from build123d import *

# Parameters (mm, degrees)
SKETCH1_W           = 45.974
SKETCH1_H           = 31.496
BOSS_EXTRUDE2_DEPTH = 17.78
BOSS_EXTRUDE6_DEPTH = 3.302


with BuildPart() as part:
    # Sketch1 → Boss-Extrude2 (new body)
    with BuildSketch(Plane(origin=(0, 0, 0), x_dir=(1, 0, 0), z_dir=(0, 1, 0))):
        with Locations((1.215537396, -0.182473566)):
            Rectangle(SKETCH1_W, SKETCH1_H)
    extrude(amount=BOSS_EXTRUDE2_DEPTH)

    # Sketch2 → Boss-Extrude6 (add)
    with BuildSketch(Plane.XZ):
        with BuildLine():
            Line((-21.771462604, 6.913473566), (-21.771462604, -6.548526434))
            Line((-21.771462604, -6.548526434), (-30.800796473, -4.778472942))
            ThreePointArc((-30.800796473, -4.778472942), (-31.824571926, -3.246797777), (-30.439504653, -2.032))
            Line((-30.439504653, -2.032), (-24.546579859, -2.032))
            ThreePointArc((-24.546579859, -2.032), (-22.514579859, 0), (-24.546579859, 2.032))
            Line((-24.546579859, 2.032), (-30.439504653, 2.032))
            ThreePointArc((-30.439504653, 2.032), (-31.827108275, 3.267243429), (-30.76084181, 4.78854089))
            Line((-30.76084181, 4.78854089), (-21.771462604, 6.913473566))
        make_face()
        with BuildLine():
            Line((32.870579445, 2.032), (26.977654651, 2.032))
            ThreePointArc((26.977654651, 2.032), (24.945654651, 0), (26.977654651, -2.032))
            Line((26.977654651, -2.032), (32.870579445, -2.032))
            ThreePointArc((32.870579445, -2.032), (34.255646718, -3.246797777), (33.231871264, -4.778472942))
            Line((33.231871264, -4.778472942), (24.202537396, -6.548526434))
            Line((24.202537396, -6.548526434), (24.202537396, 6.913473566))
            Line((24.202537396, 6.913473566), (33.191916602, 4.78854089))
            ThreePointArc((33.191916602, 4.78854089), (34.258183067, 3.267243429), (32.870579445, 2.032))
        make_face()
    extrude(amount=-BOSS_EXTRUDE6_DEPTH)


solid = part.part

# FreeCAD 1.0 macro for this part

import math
import FreeCAD as App
import Part
import Sketcher
from FreeCAD import Vector
Q = App.Units.Quantity

doc = App.newDocument("Part")
body = doc.addObject("PartDesign::Body", "Body")

# Sketch on XZ plane
sketch1 = body.newObject("Sketcher::SketchObject", "Sketch")
sketch1.AttachmentSupport = (doc.getObject("XZ_Plane"), [""])
sketch1.MapMode = "FlatFace"
sketch1.addGeometry(Part.LineSegment(Vector(-21.771463, -15.565526, 0), Vector(-21.771463, 15.930474, 0)), False)
sketch1.addGeometry(Part.LineSegment(Vector(-21.771463, 15.930474, 0), Vector(24.202537, 15.930474, 0)), False)
sketch1.addGeometry(Part.LineSegment(Vector(24.202537, 15.930474, 0), Vector(24.202537, -15.565526, 0)), False)
sketch1.addGeometry(Part.LineSegment(Vector(24.202537, -15.565526, 0), Vector(-21.771463, -15.565526, 0)), False)
sketch1.addConstraint(Sketcher.Constraint("Coincident", 0, 2, 1, 1))
sketch1.addConstraint(Sketcher.Constraint("Coincident", 1, 2, 2, 1))
sketch1.addConstraint(Sketcher.Constraint("Coincident", 2, 2, 3, 1))
sketch1.addConstraint(Sketcher.Constraint("Coincident", 3, 2, 0, 1))
sketch1.addConstraint(Sketcher.Constraint("Vertical", 0))
sketch1.addConstraint(Sketcher.Constraint("Horizontal", 1))
sketch1.addConstraint(Sketcher.Constraint("Vertical", 2))
sketch1.addConstraint(Sketcher.Constraint("Horizontal", 3))
sketch1.addConstraint(Sketcher.Constraint("DistanceX", 1, 1, 1, 2, Q("1.81 in")))
sketch1.addConstraint(Sketcher.Constraint("DistanceY", 0, 1, 0, 2, Q("1.24 in")))
sketch1.addConstraint(Sketcher.Constraint("DistanceX", 0, 2, -1, 1, Q("21.771463 mm")))
sketch1.addConstraint(Sketcher.Constraint("DistanceY", -1, 1, 0, 2, Q("15.930474 mm")))
pad1 = body.newObject("PartDesign::Pad", "Pad")
pad1.Profile = sketch1
pad1.Length = Q("0.7 in")
pad1.Reversed = True

# Sketch on XZ plane
sketch2 = body.newObject("Sketcher::SketchObject", "Sketch001")
sketch2.AttachmentSupport = (doc.getObject("XZ_Plane"), [""])
sketch2.MapMode = "FlatFace"
sketch2.addGeometry(Part.LineSegment(Vector(-21.771463, -6.548526, 0), Vector(-21.771463, 6.913474, 0)), False)
sketch2.addGeometry(Part.LineSegment(Vector(-21.771463, 6.913474, 0), Vector(-30.760842, 4.788541, 0)), False)
sketch2.addGeometry(Part.ArcOfCircle(Part.Circle(Vector(-30.439505, 3.429, 0), Vector(0, 0, 1), 1.397), math.radians(103.298216), math.radians(270)), False)
sketch2.addGeometry(Part.LineSegment(Vector(-30.439505, 2.032, 0), Vector(-24.54658, 2.032, 0)), False)
sketch2.addGeometry(Part.ArcOfCircle(Part.Circle(Vector(-24.54658, 0, 0), Vector(0, 0, 1), 2.032), math.radians(-90), math.radians(90)), False)
sketch2.addGeometry(Part.LineSegment(Vector(-24.54658, -2.032, 0), Vector(-30.439505, -2.032, 0)), False)
sketch2.addGeometry(Part.ArcOfCircle(Part.Circle(Vector(-30.439505, -3.429, 0), Vector(0, 0, 1), 1.397), math.radians(90), math.radians(255.01182)), False)
sketch2.addGeometry(Part.LineSegment(Vector(-30.800796, -4.778473, 0), Vector(-21.771463, -6.548526, 0)), False)
sketch2.addGeometry(Part.LineSegment(Vector(26.977655, 2.032, 0), Vector(32.870579, 2.032, 0)), False)
sketch2.addGeometry(Part.ArcOfCircle(Part.Circle(Vector(32.870579, 3.429, 0), Vector(0, 0, 1), 1.397), math.radians(-90), math.radians(76.701784)), False)
sketch2.addGeometry(Part.LineSegment(Vector(33.191917, 4.788541, 0), Vector(24.202537, 6.913474, 0)), False)
sketch2.addGeometry(Part.LineSegment(Vector(24.202537, 6.913474, 0), Vector(24.202537, -6.548526, 0)), False)
sketch2.addGeometry(Part.LineSegment(Vector(24.202537, -6.548526, 0), Vector(33.231871, -4.778473, 0)), False)
sketch2.addGeometry(Part.ArcOfCircle(Part.Circle(Vector(32.870579, -3.429, 0), Vector(0, 0, 1), 1.397), math.radians(-75.01182), math.radians(90)), False)
sketch2.addGeometry(Part.LineSegment(Vector(32.870579, -2.032, 0), Vector(26.977655, -2.032, 0)), False)
sketch2.addGeometry(Part.ArcOfCircle(Part.Circle(Vector(26.977655, 0, 0), Vector(0, 0, 1), 2.032), math.radians(90), math.radians(270)), False)
sketch2.addConstraint(Sketcher.Constraint("Coincident", 0, 2, 1, 1))
sketch2.addConstraint(Sketcher.Constraint("Coincident", 1, 2, 2, 1))
sketch2.addConstraint(Sketcher.Constraint("Tangent", 2, 2, 3, 1))
sketch2.addConstraint(Sketcher.Constraint("Tangent", 3, 2, 4, 2))
sketch2.addConstraint(Sketcher.Constraint("Tangent", 4, 1, 5, 1))
sketch2.addConstraint(Sketcher.Constraint("Tangent", 5, 2, 6, 1))
sketch2.addConstraint(Sketcher.Constraint("Coincident", 6, 2, 7, 1))
sketch2.addConstraint(Sketcher.Constraint("Coincident", 7, 2, 0, 1))
sketch2.addConstraint(Sketcher.Constraint("Tangent", 8, 2, 9, 1))
sketch2.addConstraint(Sketcher.Constraint("Coincident", 9, 2, 10, 1))
sketch2.addConstraint(Sketcher.Constraint("Coincident", 10, 2, 11, 1))
sketch2.addConstraint(Sketcher.Constraint("Coincident", 11, 2, 12, 1))
sketch2.addConstraint(Sketcher.Constraint("Coincident", 12, 2, 13, 1))
sketch2.addConstraint(Sketcher.Constraint("Tangent", 13, 2, 14, 1))
sketch2.addConstraint(Sketcher.Constraint("Tangent", 14, 2, 15, 2))
sketch2.addConstraint(Sketcher.Constraint("Tangent", 15, 1, 8, 1))
sketch2.addConstraint(Sketcher.Constraint("Vertical", 0))
sketch2.addConstraint(Sketcher.Constraint("Horizontal", 3))
sketch2.addConstraint(Sketcher.Constraint("Horizontal", 5))
sketch2.addConstraint(Sketcher.Constraint("Horizontal", 8))
sketch2.addConstraint(Sketcher.Constraint("Vertical", 11))
sketch2.addConstraint(Sketcher.Constraint("Horizontal", 14))
sketch2.addConstraint(Sketcher.Constraint("Equal", 2, 6))
sketch2.addConstraint(Sketcher.Constraint("Equal", 6, 9))
sketch2.addConstraint(Sketcher.Constraint("Equal", 9, 13))
sketch2.addConstraint(Sketcher.Constraint("Equal", 4, 15))
sketch2.addConstraint(Sketcher.Constraint("Symmetric", 2, 3, 6, 3, -1))
sketch2.addConstraint(Sketcher.Constraint("Symmetric", 9, 3, 13, 3, -1))
sketch2.addConstraint(Sketcher.Constraint("Horizontal", 1, 2, 9, 2))
sketch2.addConstraint(Sketcher.Constraint("Horizontal", 0, 2, 10, 2))
sketch2.addConstraint(Sketcher.Constraint("Horizontal", 7, 2, 11, 2))
sketch2.addConstraint(Sketcher.Constraint("Horizontal", 6, 2, 12, 2))
sketch2.addConstraint(Sketcher.Constraint("Equal", 5, 8))
sketch2.addConstraint(Sketcher.Constraint("Equal", 1, 10))
sketch2.addConstraint(Sketcher.Constraint("Radius", 4, Q("0.08 in")))
sketch2.addConstraint(Sketcher.Constraint("Radius", 2, Q("0.055 in")))
sketch2.addConstraint(Sketcher.Constraint("DistanceY", 0, 1, 0, 2, Q("0.53 in")))
sketch2.addConstraint(Sketcher.Constraint("DistanceX", 3, 1, 3, 2, Q("5.892925 mm")))
sketch2.addConstraint(Sketcher.Constraint("DistanceX", 4, 3, -1, 1, Q("24.54658 mm")))
sketch2.addConstraint(Sketcher.Constraint("DistanceX", -1, 1, 9, 3, Q("32.870579 mm")))
sketch2.addConstraint(Sketcher.Constraint("DistanceX", 1, 2, -1, 1, Q("30.760842 mm")))
sketch2.addConstraint(Sketcher.Constraint("DistanceX", -1, 1, 12, 2, Q("33.231871 mm")))
sketch2.addConstraint(Sketcher.Constraint("DistanceX", 1, 2, 0, 2, Q("8.989379 mm")))
sketch2.addConstraint(Sketcher.Constraint("Distance", 1, Q("9.237114 mm")))
pad2 = body.newObject("PartDesign::Pad", "Pad001")
pad2.Profile = sketch2
pad2.Length = Q("0.13 in")
pad2.Reversed = True

doc.recompute()
